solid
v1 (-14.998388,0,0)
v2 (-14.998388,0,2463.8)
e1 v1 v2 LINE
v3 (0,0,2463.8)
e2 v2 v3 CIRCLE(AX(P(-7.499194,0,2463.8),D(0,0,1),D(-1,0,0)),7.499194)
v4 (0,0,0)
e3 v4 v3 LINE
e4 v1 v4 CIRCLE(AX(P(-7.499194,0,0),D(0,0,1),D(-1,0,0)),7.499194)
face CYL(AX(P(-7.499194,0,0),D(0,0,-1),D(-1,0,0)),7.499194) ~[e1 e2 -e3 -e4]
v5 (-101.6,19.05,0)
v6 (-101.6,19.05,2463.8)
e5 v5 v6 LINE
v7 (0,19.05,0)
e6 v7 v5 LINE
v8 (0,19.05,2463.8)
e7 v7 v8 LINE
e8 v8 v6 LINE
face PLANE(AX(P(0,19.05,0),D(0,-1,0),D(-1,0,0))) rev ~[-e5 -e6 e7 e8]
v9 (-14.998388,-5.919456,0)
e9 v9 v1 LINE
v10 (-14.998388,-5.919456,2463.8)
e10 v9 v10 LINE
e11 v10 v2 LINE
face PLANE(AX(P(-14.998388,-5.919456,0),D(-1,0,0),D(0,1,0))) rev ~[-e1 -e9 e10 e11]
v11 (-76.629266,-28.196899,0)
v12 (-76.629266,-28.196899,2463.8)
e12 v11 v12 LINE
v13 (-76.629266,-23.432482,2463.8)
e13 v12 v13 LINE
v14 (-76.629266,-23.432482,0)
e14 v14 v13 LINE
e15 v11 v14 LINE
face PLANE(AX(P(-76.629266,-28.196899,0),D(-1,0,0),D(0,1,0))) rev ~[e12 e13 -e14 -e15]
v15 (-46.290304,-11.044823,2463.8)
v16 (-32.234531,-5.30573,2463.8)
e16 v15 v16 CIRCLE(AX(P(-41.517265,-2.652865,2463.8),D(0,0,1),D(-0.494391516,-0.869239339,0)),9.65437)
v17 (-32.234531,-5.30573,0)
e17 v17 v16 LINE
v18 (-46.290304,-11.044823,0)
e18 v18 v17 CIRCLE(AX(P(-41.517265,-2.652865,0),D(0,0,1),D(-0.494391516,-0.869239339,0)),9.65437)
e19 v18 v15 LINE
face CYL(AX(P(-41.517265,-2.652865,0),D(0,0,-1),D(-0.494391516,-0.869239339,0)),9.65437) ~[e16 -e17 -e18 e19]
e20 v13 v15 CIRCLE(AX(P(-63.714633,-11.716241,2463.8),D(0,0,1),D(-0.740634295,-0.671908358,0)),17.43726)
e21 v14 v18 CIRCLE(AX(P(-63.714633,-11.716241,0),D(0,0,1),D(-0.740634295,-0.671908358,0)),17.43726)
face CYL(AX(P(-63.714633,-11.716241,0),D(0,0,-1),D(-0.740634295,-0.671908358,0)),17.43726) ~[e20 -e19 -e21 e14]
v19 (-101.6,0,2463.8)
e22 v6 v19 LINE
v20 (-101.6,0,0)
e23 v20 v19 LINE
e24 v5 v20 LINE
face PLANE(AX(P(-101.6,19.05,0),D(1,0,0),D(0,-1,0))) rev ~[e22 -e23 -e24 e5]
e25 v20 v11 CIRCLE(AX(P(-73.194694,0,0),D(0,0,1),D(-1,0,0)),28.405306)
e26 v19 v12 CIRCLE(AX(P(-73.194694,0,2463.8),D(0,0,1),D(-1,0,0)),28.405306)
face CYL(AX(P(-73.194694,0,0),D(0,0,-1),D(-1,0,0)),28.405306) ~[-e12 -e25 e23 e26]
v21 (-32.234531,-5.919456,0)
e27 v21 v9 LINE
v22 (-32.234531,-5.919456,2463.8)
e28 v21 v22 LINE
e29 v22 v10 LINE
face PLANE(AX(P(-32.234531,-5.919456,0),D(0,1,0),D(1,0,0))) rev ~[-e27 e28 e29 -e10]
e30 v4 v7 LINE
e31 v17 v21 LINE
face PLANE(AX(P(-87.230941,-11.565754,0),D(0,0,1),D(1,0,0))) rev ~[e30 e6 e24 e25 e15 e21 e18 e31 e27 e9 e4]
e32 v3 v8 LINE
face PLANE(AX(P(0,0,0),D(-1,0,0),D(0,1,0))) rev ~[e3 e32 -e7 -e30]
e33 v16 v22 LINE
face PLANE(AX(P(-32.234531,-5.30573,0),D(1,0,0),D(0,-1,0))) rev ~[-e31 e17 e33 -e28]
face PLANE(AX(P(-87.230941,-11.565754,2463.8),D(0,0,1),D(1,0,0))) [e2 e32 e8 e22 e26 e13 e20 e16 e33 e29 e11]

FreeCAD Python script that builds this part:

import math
import FreeCAD as App
import Part
import Sketcher
Q = App.Units.Quantity

doc = App.newDocument("Part")
body = doc.addObject("PartDesign::Body", "Body")

sketch1 = body.newObject("Sketcher::SketchObject", "Sketch")
sketch1.AttachmentSupport = (doc.getObject("XY_Plane"), [""])
sketch1.MapMode = "FlatFace"
sketch1.addGeometry([
    Part.ArcOfCircle(Part.Circle(App.Vector(-73.2, 0, 0), App.Vector(0, 0, 1), 28.4), math.radians(180), math.radians(263)),
    Part.LineSegment(App.Vector(-76.6, -28.2, 0), App.Vector(-76.6, -23.4, 0)),
    Part.ArcOfCircle(Part.Circle(App.Vector(-63.7, -11.7, 0), App.Vector(0, 0, 1), 17.4), math.radians(-138), math.radians(2)),
    Part.ArcOfCircle(Part.Circle(App.Vector(-41.5, -2.7, 0), App.Vector(0, 0, 1), 9.7), math.radians(-120), math.radians(-16)),
    Part.LineSegment(App.Vector(-32.2, -5.3, 0), App.Vector(-32.2, -5.9, 0)),
    Part.LineSegment(App.Vector(-32.2, -5.9, 0), App.Vector(-15, -5.9, 0)),
    Part.LineSegment(App.Vector(-15, -5.9, 0), App.Vector(-15, 0, 0)),
    Part.ArcOfCircle(Part.Circle(App.Vector(-7.5, 0, 0), App.Vector(0, 0, 1), 7.5), math.radians(180), math.radians(360)),
    Part.LineSegment(App.Vector(0, 0, 0), App.Vector(0, 19.1, 0)),
    Part.LineSegment(App.Vector(0, 19.1, 0), App.Vector(-101.6, 19.1, 0)),
    Part.LineSegment(App.Vector(-101.6, 19.1, 0), App.Vector(-101.6, 0, 0)),
], False)
sketch1.addConstraint([
    Sketcher.Constraint("Coincident", 0, 2, 1, 1),
    Sketcher.Constraint("Coincident", 1, 2, 2, 1),
    Sketcher.Constraint("Coincident", 2, 2, 3, 1),
    Sketcher.Constraint("Coincident", 3, 2, 4, 1),
    Sketcher.Constraint("Coincident", 4, 2, 5, 1),
    Sketcher.Constraint("Coincident", 5, 2, 6, 1),
    Sketcher.Constraint("Tangent", 6, 2, 7, 1),
    Sketcher.Constraint("Tangent", 7, 2, 8, 1),
    Sketcher.Constraint("Coincident", 8, 2, 9, 1),
    Sketcher.Constraint("Coincident", 9, 2, 10, 1),
    Sketcher.Constraint("Tangent", 10, 2, 0, 1),
    Sketcher.Constraint("Vertical", 1),
    Sketcher.Constraint("Vertical", 4),
    Sketcher.Constraint("Horizontal", 5),
    Sketcher.Constraint("Vertical", 6),
    Sketcher.Constraint("Vertical", 8),
    Sketcher.Constraint("Horizontal", 9),
    Sketcher.Constraint("Vertical", 10),
    Sketcher.Constraint("Coincident", 7, 2, -1, 1),
    Sketcher.Constraint("PointOnObject", 0, 3, -1),
    Sketcher.Constraint("DistanceX", 9, 2, 9, 1, Q("4 in")),
    Sketcher.Constraint("DistanceY", 8, 1, 8, 2, Q("0.75 in")),
    Sketcher.Constraint("Radius", 2, Q("17.43726 mm")),
    Sketcher.Constraint("Radius", 3, Q("9.65437 mm")),
    Sketcher.Constraint("Radius", 0, Q("28.405306 mm")),
    Sketcher.Constraint("Radius", 7, Q("7.499194 mm")),
    Sketcher.Constraint("DistanceY", 0, 2, -1, 1, Q("28.196899 mm")),
    Sketcher.Constraint("DistanceX", 0, 2, 3, 3, Q("35.112001 mm")),
    Sketcher.Constraint("DistanceX", 5, 1, 5, 2, Q("17.236142 mm")),
    Sketcher.Constraint("DistanceY", 1, 1, 1, 2, Q("4.764417 mm")),
    Sketcher.Constraint("DistanceY", 4, 2, 4, 1, Q("0.613726 mm")),
    Sketcher.Constraint("DistanceY", 6, 1, 6, 2, Q("5.919456 mm")),
    Sketcher.Constraint("DistanceY", 2, 3, -1, 1, Q("11.716241 mm")),
])
pad1 = body.newObject("PartDesign::Pad", "Pad")
pad1.Profile = sketch1
pad1.Length = Q("97 in")

doc.recompute()
